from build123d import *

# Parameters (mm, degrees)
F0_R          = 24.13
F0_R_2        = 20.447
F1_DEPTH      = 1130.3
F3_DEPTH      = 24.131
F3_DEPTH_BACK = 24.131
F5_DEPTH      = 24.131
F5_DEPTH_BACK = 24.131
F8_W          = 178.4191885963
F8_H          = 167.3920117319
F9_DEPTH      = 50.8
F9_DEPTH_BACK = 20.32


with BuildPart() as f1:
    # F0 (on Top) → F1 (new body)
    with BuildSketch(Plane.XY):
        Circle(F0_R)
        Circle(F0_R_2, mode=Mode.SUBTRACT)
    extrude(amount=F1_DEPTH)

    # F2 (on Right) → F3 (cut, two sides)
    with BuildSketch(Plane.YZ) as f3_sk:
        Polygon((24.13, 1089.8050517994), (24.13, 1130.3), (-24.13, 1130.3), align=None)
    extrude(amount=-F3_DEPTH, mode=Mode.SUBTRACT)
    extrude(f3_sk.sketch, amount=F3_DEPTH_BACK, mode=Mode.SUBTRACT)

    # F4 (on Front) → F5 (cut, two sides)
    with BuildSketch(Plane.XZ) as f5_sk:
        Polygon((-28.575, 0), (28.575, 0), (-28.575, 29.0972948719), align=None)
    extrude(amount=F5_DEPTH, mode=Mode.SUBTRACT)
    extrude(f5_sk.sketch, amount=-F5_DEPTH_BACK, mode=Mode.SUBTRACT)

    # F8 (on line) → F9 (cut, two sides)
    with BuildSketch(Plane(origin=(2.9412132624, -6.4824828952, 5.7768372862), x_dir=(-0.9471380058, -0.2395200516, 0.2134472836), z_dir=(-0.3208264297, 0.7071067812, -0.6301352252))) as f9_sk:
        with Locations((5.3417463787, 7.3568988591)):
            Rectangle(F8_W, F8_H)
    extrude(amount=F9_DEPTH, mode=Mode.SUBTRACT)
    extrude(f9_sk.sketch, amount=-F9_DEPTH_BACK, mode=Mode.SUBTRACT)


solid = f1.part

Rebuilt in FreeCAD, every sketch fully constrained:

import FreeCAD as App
import Part
import Sketcher
from FreeCAD import Vector
Q = App.Units.Quantity

doc = App.newDocument("Part")
body = doc.addObject("PartDesign::Body", "Body")

# Sketch on XY plane
sketch1 = body.newObject("Sketcher::SketchObject", "Sketch")
sketch1.AttachmentSupport = (doc.getObject("XY_Plane"), [""])
sketch1.MapMode = "FlatFace"
sketch1.addGeometry([
    Part.Circle(Vector(0, 0, 0), Vector(0, 0, 1), 24),
    Part.Circle(Vector(0, 0, 0), Vector(0, 0, 1), 20),
], False)
sketch1.addConstraint([
    Sketcher.Constraint("Coincident", 0, 3, -1, 1),
    Sketcher.Constraint("Coincident", 1, 3, -1, 1),
    Sketcher.Constraint("Diameter", 0, Q("1.9 in")),
    Sketcher.Constraint("Diameter", 1, Q("1.61 in")),
])
pad1 = body.newObject("PartDesign::Pad", "Pad")
pad1.Profile = sketch1
pad1.Length = Q("44.5 in")

# Sketch on YZ plane
sketch2 = body.newObject("Sketcher::SketchObject", "Sketch001")
sketch2.AttachmentSupport = (doc.getObject("YZ_Plane"), [""])
sketch2.MapMode = "FlatFace"
sketch2.addGeometry([
    Part.LineSegment(Vector(24, 1090, 0), Vector(24, 1130, 0)),
    Part.LineSegment(Vector(24, 1130, 0), Vector(-24, 1130, 0)),
    Part.LineSegment(Vector(-24, 1130, 0), Vector(24, 1090, 0)),
], False)
sketch2.addConstraint([
    Sketcher.Constraint("Coincident", 0, 2, 1, 1),
    Sketcher.Constraint("Coincident", 1, 2, 2, 1),
    Sketcher.Constraint("Coincident", 2, 2, 0, 1),
    Sketcher.Constraint("Vertical", 0),
    Sketcher.Constraint("Horizontal", 1),
    Sketcher.Constraint("DistanceX", 1, 2, 1, 1, Q("1.9 in")),
    Sketcher.Constraint("Angle", 2, Q("-40 deg")),
    Sketcher.Constraint("DistanceY", -1, 1, 0, 2, Q("44.5 in")),
    Sketcher.Constraint("DistanceX", -1, 1, 0, 2, Q("0.95 in")),
])
pocket1 = body.newObject("PartDesign::Pocket", "Pocket")
pocket1.Profile = sketch2
pocket1.Type = "ThroughAll"
pocket1.Midplane = True

# Sketch on XZ plane
sketch3 = body.newObject("Sketcher::SketchObject", "Sketch002")
sketch3.AttachmentSupport = (doc.getObject("XZ_Plane"), [""])
sketch3.MapMode = "FlatFace"
sketch3.addGeometry([
    Part.LineSegment(Vector(-29, 0, 0), Vector(29, 0, 0)),
    Part.LineSegment(Vector(29, 0, 0), Vector(-29, 29, 0)),
    Part.LineSegment(Vector(-29, 29, 0), Vector(-29, 0, 0)),
], False)
sketch3.addConstraint([
    Sketcher.Constraint("Coincident", 0, 2, 1, 1),
    Sketcher.Constraint("Coincident", 1, 2, 2, 1),
    Sketcher.Constraint("Coincident", 2, 2, 0, 1),
    Sketcher.Constraint("Horizontal", 0),
    Sketcher.Constraint("Vertical", 2),
    Sketcher.Constraint("Symmetric", 0, 2, 2, 2, -1, 1),
    Sketcher.Constraint("DistanceX", 0, 1, 0, 2, Q("2.25 in")),
    Sketcher.Constraint("Distance", 1, 64.130921),
])
pocket2 = body.newObject("PartDesign::Pocket", "Pocket001")
pocket2.Profile = sketch3
pocket2.Type = "ThroughAll"
pocket2.Midplane = True

# Sketch on an angled plane
sketch4 = body.newObject("Sketcher::SketchObject", "Sketch003")
sketch4.Placement = App.Placement(Vector(2.941213, -6.482483, 5.776837), App.Rotation(Vector(-0.947138006, -0.239520052, 0.213447284), Vector(0, 0.665304551, 0.74657207), Vector(-0.32082643, 0.707106781, -0.630135225), "ZXY"))
sketch4.addGeometry([
    Part.LineSegment(Vector(-84, 91, 0), Vector(-84, -76, 0)),
    Part.LineSegment(Vector(-84, -76, 0), Vector(95, -76, 0)),
    Part.LineSegment(Vector(95, -76, 0), Vector(95, 91, 0)),
    Part.LineSegment(Vector(95, 91, 0), Vector(-84, 91, 0)),
], False)
sketch4.addConstraint([
    Sketcher.Constraint("Coincident", 0, 2, 1, 1),
    Sketcher.Constraint("Coincident", 1, 2, 2, 1),
    Sketcher.Constraint("Coincident", 2, 2, 3, 1),
    Sketcher.Constraint("Coincident", 3, 2, 0, 1),
    Sketcher.Constraint("Vertical", 0),
    Sketcher.Constraint("Horizontal", 1),
    Sketcher.Constraint("Vertical", 2),
    Sketcher.Constraint("Horizontal", 3),
    Sketcher.Constraint("DistanceX", 1, 1, 1, 2, 178.419189),
    Sketcher.Constraint("DistanceY", 0, 2, 0, 1, 167.392012),
    Sketcher.Constraint("DistanceX", -1, 1, 1, 2, 94.551341),
    Sketcher.Constraint("DistanceY", 0, 2, -1, 1, 76.339107),
])
pocket3 = body.newObject("PartDesign::Pocket", "Pocket002")
pocket3.Profile = sketch4
pocket3.Type = "TwoLengths"
pocket3.Length = Q("2 in")
pocket3.Length2 = Q("0.8 in")
pocket3.Reversed = True

doc.recompute()
